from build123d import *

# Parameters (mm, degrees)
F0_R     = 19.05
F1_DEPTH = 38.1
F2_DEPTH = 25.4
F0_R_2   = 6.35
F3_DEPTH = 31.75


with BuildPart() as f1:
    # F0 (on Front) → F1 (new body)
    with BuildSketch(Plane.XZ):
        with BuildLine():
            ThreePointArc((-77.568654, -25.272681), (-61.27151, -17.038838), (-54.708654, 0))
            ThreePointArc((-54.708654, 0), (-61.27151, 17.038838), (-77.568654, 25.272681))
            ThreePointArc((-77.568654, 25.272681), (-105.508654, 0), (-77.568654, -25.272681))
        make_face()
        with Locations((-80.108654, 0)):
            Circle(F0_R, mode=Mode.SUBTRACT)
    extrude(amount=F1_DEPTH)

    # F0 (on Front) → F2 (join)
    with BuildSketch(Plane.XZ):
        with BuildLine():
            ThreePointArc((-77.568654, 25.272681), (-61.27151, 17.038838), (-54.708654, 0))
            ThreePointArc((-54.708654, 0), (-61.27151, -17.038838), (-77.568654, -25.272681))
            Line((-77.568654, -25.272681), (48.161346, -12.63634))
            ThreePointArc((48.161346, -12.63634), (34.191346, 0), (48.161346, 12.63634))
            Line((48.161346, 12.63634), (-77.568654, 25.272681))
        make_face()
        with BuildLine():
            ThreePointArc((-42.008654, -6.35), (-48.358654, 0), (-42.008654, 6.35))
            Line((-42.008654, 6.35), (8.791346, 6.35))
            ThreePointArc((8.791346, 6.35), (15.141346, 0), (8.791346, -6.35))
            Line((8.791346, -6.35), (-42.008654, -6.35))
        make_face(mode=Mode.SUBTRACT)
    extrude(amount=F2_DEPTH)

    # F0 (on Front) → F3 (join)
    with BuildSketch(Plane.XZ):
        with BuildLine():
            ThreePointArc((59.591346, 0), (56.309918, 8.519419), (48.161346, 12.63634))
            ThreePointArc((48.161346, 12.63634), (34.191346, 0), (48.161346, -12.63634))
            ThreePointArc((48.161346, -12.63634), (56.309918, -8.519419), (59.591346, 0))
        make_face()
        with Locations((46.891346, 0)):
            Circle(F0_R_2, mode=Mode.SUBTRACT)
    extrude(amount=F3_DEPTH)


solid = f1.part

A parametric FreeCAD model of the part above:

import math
import FreeCAD as App
import Part
import Sketcher
Q = App.Units.Quantity

doc = App.newDocument("Part")
body = doc.addObject("PartDesign::Body", "Body")

# Sketch on XZ plane
sketch1 = body.newObject("Sketcher::SketchObject", "Sketch")
sketch1.AttachmentSupport = (doc.getObject("XZ_Plane"), [""])
sketch1.MapMode = "FlatFace"
sketch1.addGeometry([
    Part.ArcOfCircle(Part.Circle(App.Vector(-80, 0, 0), App.Vector(0, 0, 1), 25), math.radians(-84), math.radians(0)),
    Part.ArcOfCircle(Part.Circle(App.Vector(-80, 0, 0), App.Vector(0, 0, 1), 25), math.radians(0), math.radians(84)),
    Part.ArcOfCircle(Part.Circle(App.Vector(-80, 0, 0), App.Vector(0, 0, 1), 25), math.radians(84), math.radians(276)),
    Part.Circle(App.Vector(-80, 0, 0), App.Vector(0, 0, 1), 19),
], False)
sketch1.addConstraint([
    Sketcher.Constraint("Tangent", 0, 2, 1, 1),
    Sketcher.Constraint("Tangent", 1, 2, 2, 1),
    Sketcher.Constraint("Tangent", 2, 2, 0, 1),
    Sketcher.Constraint("Coincident", 3, 3, 0, 3),
    Sketcher.Constraint("Symmetric", 1, 2, 2, 2, -1),
    Sketcher.Constraint("PointOnObject", 0, 2, -1),
    Sketcher.Constraint("Radius", 0, Q("1 in")),
    Sketcher.Constraint("Diameter", 3, Q("1.5 in")),
    Sketcher.Constraint("DistanceX", 0, 3, 1, 2, Q("0.1 in")),
    Sketcher.Constraint("DistanceX", 0, 3, -1, 1, Q("80.108655 mm")),
])
pad1 = body.newObject("PartDesign::Pad", "Pad")
pad1.Profile = sketch1
pad1.Length = Q("1.5 in")

# Sketch on XZ plane
sketch2 = body.newObject("Sketcher::SketchObject", "Sketch001")
sketch2.AttachmentSupport = (doc.getObject("XZ_Plane"), [""])
sketch2.MapMode = "FlatFace"
sketch2.addGeometry([
    Part.ArcOfCircle(Part.Circle(App.Vector(-80, 0, 0), App.Vector(0, 0, 1), 25), math.radians(0), math.radians(84)),  # 0
    Part.ArcOfCircle(Part.Circle(App.Vector(-80, 0, 0), App.Vector(0, 0, 1), 25), math.radians(-84), math.radians(0)),  # 1
    Part.LineSegment(App.Vector(-78, -25, 0), App.Vector(48, -13, 0)),  # 2
    Part.ArcOfCircle(Part.Circle(App.Vector(47, 0, 0), App.Vector(0, 0, 1), 13), math.radians(84), math.radians(276)),  # 3
    Part.LineSegment(App.Vector(48, 13, 0), App.Vector(-78, 25, 0)),  # 4
    Part.LineSegment(App.Vector(9, -6, 0), App.Vector(-42, -6, 0)),  # 5
    Part.ArcOfCircle(Part.Circle(App.Vector(-42, 0, 0), App.Vector(0, 0, 1), 6), math.radians(90), math.radians(270)),  # 6
    Part.LineSegment(App.Vector(-42, 6, 0), App.Vector(9, 6, 0)),  # 7
    Part.ArcOfCircle(Part.Circle(App.Vector(9, 0, 0), App.Vector(0, 0, 1), 6), math.radians(-90), math.radians(90)),  # 8
], False)
sketch2.addConstraint([
    Sketcher.Constraint("Tangent", 0, 1, 1, 2),
    Sketcher.Constraint("Tangent", 1, 1, 2, 1),
    Sketcher.Constraint("Tangent", 2, 2, 3, 2),
    Sketcher.Constraint("Tangent", 3, 1, 4, 1),
    Sketcher.Constraint("Tangent", 4, 2, 0, 2),
    Sketcher.Constraint("Tangent", 5, 2, 6, 2),
    Sketcher.Constraint("Tangent", 6, 1, 7, 1),
    Sketcher.Constraint("Tangent", 7, 2, 8, 2),
    Sketcher.Constraint("Tangent", 8, 1, 5, 1),
    Sketcher.Constraint("Horizontal", 5),
    Sketcher.Constraint("Horizontal", 7),
    Sketcher.Constraint("Equal", 0, 1),
    Sketcher.Constraint("Symmetric", 2, 2, 3, 1, -1),
    Sketcher.Constraint("PointOnObject", 6, 3, -1),
    Sketcher.Constraint("PointOnObject", 0, 1, -1),
    Sketcher.Constraint("Radius", 0, Q("1 in")),
    Sketcher.Constraint("Radius", 3, Q("0.5 in")),
    Sketcher.Constraint("DistanceX", 5, 2, 5, 1, Q("2 in")),
    Sketcher.Constraint("Radius", 6, Q("0.25 in")),
    Sketcher.Constraint("DistanceX", 0, 3, 3, 3, Q("5 in")),
    Sketcher.Constraint("DistanceX", 0, 3, 6, 3, Q("1.5 in")),
    Sketcher.Constraint("DistanceX", 0, 3, -1, 1, Q("80.108655 mm")),
])
pad2 = body.newObject("PartDesign::Pad", "Pad001")
pad2.Profile = sketch2
pad2.Length = Q("1 in")

# Sketch on XZ plane
sketch3 = body.newObject("Sketcher::SketchObject", "Sketch002")
sketch3.AttachmentSupport = (doc.getObject("XZ_Plane"), [""])
sketch3.MapMode = "FlatFace"
sketch3.addGeometry([
    Part.ArcOfCircle(Part.Circle(App.Vector(47, 0, 0), App.Vector(0, 0, 1), 13), math.radians(0), math.radians(84)),
    Part.ArcOfCircle(Part.Circle(App.Vector(47, 0, 0), App.Vector(0, 0, 1), 13), math.radians(84), math.radians(276)),
    Part.ArcOfCircle(Part.Circle(App.Vector(47, 0, 0), App.Vector(0, 0, 1), 13), math.radians(-84), math.radians(0)),
    Part.Circle(App.Vector(47, 0, 0), App.Vector(0, 0, 1), 6),
], False)
sketch3.addConstraint([
    Sketcher.Constraint("Tangent", 0, 2, 1, 1),
    Sketcher.Constraint("Tangent", 1, 2, 2, 1),
    Sketcher.Constraint("Tangent", 2, 2, 0, 1),
    Sketcher.Constraint("Coincident", 3, 3, 0, 3),
    Sketcher.Constraint("Symmetric", 0, 2, 1, 2, -1),
    Sketcher.Constraint("PointOnObject", 2, 2, -1),
    Sketcher.Constraint("Diameter", 3, Q("0.5 in")),
    Sketcher.Constraint("Radius", 0, Q("0.5 in")),
    Sketcher.Constraint("DistanceX", 0, 3, 0, 2, Q("0.05 in")),
    Sketcher.Constraint("DistanceX", -1, 1, 0, 3, Q("46.891347 mm")),
])
pad3 = body.newObject("PartDesign::Pad", "Pad002")
pad3.Profile = sketch3
pad3.Length = Q("1.25 in")

doc.recompute()
